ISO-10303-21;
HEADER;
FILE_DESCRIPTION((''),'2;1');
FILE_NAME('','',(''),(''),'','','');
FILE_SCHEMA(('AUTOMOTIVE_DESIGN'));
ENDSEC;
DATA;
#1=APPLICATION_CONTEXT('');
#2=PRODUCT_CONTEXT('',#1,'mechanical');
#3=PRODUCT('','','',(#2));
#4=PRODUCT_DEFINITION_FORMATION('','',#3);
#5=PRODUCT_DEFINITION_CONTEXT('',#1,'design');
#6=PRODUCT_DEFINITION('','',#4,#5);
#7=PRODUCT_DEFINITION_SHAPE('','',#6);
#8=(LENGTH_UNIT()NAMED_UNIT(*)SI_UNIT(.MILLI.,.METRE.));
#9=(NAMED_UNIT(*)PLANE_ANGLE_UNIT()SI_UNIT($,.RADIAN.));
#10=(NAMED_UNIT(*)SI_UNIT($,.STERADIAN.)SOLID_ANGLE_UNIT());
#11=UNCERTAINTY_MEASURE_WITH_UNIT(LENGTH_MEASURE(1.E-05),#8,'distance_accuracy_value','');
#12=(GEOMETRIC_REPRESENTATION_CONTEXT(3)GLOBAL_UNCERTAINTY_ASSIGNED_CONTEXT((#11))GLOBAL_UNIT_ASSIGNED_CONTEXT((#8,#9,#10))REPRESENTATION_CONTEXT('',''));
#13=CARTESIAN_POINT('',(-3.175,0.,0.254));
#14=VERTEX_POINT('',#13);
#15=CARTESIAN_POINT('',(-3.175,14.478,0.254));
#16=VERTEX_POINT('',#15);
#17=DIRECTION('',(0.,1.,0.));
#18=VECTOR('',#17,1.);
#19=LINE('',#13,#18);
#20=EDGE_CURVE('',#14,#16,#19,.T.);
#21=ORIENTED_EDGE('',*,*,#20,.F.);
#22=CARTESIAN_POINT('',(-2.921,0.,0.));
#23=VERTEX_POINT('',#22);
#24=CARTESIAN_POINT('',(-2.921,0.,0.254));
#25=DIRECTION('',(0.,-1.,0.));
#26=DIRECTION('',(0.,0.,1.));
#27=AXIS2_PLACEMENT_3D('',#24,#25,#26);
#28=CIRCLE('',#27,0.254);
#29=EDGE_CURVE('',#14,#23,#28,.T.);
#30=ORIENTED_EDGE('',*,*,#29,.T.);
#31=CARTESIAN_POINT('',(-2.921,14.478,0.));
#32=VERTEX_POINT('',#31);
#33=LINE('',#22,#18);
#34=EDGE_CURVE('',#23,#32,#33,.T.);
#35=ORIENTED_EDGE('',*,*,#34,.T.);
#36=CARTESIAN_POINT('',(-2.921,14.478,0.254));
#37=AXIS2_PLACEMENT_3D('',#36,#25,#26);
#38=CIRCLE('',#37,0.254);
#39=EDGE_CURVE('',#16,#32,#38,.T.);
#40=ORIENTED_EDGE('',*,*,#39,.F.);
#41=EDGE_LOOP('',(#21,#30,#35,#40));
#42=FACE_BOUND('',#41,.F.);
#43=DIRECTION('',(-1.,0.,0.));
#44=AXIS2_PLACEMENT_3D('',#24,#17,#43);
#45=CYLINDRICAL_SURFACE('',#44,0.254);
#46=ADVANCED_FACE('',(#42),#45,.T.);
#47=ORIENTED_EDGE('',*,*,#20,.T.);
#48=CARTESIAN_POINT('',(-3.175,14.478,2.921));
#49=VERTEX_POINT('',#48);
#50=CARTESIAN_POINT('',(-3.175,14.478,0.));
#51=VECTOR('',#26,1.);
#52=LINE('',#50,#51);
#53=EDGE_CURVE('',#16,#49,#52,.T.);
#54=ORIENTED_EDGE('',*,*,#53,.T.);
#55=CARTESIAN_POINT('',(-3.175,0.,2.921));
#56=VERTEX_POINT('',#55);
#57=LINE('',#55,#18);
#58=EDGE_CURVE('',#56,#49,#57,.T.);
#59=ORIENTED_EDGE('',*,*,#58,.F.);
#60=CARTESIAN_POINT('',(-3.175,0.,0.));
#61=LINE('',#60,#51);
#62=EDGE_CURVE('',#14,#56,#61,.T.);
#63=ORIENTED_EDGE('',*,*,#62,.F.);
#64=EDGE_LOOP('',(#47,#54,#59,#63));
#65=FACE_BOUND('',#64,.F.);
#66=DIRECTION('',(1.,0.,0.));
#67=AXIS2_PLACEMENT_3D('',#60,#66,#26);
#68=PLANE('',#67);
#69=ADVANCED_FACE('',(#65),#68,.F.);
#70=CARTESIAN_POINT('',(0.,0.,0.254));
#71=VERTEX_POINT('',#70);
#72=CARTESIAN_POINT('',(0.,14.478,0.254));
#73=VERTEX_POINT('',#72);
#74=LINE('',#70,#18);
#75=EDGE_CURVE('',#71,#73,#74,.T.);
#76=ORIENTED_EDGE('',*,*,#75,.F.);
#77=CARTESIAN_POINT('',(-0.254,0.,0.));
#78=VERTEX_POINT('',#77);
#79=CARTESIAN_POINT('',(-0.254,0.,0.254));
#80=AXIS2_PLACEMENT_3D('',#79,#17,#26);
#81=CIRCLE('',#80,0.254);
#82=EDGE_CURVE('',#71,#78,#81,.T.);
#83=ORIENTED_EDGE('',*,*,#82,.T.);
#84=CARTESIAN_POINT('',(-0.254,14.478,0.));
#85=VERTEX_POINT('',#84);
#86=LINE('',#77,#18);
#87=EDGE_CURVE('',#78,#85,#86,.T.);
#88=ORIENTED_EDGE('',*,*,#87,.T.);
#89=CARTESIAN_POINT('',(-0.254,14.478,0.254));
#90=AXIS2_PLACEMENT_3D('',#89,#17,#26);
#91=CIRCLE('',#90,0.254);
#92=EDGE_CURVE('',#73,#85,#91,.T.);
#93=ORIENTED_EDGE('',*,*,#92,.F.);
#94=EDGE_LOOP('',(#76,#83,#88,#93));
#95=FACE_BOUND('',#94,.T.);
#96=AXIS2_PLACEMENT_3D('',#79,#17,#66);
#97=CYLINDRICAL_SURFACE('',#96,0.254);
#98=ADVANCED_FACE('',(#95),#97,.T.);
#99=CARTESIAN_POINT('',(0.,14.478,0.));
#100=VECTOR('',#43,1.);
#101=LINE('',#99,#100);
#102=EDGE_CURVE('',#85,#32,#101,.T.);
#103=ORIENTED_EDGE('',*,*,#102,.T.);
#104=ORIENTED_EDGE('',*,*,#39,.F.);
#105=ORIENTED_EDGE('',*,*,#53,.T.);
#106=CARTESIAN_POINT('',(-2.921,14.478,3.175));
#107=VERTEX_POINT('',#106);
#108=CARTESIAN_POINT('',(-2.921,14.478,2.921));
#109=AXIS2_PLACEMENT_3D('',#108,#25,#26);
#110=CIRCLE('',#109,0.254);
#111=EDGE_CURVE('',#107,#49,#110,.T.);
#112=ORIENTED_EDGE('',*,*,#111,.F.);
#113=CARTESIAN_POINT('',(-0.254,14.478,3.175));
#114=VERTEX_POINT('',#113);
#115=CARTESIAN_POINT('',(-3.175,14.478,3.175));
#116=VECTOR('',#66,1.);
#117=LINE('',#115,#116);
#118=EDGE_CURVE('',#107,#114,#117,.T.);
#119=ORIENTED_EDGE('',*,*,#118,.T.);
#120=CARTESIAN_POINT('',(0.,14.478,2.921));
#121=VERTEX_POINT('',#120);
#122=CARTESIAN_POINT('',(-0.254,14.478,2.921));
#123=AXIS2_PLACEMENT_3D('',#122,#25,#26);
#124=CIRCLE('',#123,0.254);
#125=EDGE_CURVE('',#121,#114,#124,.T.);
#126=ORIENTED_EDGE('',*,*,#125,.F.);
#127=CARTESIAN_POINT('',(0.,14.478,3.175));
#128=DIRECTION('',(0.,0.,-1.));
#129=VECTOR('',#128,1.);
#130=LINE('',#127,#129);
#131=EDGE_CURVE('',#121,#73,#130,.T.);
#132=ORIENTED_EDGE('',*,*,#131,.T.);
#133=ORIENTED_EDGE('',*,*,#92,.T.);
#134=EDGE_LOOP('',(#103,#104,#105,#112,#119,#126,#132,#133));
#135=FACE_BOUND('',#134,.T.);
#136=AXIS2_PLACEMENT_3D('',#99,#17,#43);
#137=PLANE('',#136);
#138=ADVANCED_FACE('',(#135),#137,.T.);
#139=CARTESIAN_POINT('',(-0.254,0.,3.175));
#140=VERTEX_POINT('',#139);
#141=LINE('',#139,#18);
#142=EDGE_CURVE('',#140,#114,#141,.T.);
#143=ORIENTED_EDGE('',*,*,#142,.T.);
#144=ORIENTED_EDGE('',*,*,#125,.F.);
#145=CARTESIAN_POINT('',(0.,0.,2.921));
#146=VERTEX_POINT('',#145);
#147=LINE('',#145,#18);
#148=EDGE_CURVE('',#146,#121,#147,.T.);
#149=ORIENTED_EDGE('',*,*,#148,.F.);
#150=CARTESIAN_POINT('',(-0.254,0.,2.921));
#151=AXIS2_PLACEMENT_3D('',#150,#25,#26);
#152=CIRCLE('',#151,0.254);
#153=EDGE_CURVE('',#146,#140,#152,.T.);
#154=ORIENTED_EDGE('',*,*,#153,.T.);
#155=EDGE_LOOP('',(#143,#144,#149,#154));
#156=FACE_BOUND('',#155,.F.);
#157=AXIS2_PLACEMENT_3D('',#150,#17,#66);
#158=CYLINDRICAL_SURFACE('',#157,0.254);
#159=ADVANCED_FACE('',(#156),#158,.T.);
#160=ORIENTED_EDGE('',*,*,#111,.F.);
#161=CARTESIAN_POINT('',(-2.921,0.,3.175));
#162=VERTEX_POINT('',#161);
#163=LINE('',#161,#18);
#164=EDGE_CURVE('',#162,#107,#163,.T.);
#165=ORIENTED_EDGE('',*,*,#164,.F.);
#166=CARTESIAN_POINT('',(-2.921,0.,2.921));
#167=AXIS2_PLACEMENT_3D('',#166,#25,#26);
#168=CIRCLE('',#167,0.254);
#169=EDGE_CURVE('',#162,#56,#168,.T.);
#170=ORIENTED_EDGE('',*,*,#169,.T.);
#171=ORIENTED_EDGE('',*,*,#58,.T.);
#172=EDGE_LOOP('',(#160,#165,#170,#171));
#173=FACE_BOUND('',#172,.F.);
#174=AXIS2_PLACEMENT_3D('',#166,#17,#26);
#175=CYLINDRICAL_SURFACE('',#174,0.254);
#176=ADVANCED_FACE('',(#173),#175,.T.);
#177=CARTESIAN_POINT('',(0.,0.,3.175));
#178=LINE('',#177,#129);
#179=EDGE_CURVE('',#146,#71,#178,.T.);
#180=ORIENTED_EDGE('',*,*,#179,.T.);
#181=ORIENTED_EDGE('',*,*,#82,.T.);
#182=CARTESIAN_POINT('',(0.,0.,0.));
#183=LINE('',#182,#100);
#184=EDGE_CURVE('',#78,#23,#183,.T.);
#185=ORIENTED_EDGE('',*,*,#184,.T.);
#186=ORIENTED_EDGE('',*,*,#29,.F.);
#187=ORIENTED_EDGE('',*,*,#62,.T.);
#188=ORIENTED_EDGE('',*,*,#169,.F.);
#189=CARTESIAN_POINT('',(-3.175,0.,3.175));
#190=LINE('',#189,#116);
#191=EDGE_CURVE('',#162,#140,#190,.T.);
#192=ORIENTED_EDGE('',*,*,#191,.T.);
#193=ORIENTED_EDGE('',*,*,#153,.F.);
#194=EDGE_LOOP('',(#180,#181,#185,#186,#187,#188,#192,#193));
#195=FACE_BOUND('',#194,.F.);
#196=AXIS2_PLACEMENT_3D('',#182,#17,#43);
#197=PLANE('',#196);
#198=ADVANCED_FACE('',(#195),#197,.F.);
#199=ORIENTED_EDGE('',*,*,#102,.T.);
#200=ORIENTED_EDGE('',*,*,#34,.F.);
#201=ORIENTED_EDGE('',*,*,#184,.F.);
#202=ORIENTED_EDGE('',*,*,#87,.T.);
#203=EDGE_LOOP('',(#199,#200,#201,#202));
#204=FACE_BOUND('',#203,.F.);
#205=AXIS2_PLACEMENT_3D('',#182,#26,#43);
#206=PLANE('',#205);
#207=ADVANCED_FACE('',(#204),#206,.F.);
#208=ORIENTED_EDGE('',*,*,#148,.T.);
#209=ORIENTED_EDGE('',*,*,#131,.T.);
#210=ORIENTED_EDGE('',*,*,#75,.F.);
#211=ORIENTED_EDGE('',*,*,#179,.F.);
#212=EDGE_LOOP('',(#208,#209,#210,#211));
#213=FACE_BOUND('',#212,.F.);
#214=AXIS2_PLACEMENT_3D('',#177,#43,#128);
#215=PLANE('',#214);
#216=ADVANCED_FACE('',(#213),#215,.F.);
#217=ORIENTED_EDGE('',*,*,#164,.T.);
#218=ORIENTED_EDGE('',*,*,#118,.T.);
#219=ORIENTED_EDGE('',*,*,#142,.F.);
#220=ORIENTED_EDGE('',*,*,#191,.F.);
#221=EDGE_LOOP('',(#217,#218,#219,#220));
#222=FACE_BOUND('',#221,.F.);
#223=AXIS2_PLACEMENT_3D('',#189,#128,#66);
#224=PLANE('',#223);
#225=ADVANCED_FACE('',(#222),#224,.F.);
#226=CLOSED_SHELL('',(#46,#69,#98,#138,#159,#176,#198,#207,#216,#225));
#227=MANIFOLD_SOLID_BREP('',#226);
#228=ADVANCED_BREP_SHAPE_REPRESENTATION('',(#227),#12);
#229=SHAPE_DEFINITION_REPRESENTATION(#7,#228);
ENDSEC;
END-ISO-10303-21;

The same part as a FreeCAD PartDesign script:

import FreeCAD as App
import Part
import Sketcher
from FreeCAD import Vector
Q = App.Units.Quantity


def edges_at(feature, points):
    """Names of the edges that pass closest to the given points."""
    edges = feature.Shape.Edges
    near = lambda p: min(range(len(edges)), key=lambda i: edges[i].distToShape(Part.Vertex(*p))[0])
    return sorted({f"Edge{near(p) + 1}" for p in points})


def add_polygon(sketch, points):
    """Adds a closed chain of lines whose ends are joined by coincident constraints."""
    first, n = sketch.GeometryCount, len(points)
    for a, b in zip(points, points[1:] + points[:1]):
        sketch.addGeometry(Part.LineSegment(App.Vector(*a, 0), App.Vector(*b, 0)), False)
    for i in range(n):
        sketch.addConstraint(Sketcher.Constraint("Coincident", first + i, 2, first + (i + 1) % n, 1))

doc = App.newDocument("Part")
body = doc.addObject("PartDesign::Body", "Body")

# Sketch on XZ plane
sketch1 = doc.addObject("Sketcher::SketchObject", "Sketch")
body.addObject(sketch1)
sketch1.AttachmentSupport = (doc.XZ_Plane, [""])
sketch1.MapMode = "FlatFace"
add_polygon(sketch1, [(0, 3.2), (0, 0), (-3.2, 0), (-3.2, 3.2)])  # lines 0-3
sketch1.addConstraint([
    Sketcher.Constraint("Vertical", 0),
    Sketcher.Constraint("Horizontal", 1),
    Sketcher.Constraint("Vertical", 2),
    Sketcher.Constraint("Horizontal", 3),
    Sketcher.Constraint("Coincident", 0, 2, -1, 1),
    Sketcher.Constraint("Equal", 3, 0),
    Sketcher.Constraint("DistanceX", 1, 2, 1, 1, Q("0.125 in")),
])
pad1 = doc.addObject("PartDesign::Pad", "Pad")
body.addObject(pad1)
pad1.Profile = sketch1
pad1.Length = Q("0.57 in")
pad1.Reversed = True
doc.recompute()

fillet = doc.addObject("PartDesign::Fillet", "Fillet")
body.addObject(fillet)
fillet.Base = (pad1, edges_at(pad1, [
    (0, 7.239, 3.175),
    (0, 7.239, 0),
    (-3.175, 7.239, 3.175),
    (-3.175, 7.239, 0),
]))
fillet.Radius = Q("0.01 in")

doc.recompute()
